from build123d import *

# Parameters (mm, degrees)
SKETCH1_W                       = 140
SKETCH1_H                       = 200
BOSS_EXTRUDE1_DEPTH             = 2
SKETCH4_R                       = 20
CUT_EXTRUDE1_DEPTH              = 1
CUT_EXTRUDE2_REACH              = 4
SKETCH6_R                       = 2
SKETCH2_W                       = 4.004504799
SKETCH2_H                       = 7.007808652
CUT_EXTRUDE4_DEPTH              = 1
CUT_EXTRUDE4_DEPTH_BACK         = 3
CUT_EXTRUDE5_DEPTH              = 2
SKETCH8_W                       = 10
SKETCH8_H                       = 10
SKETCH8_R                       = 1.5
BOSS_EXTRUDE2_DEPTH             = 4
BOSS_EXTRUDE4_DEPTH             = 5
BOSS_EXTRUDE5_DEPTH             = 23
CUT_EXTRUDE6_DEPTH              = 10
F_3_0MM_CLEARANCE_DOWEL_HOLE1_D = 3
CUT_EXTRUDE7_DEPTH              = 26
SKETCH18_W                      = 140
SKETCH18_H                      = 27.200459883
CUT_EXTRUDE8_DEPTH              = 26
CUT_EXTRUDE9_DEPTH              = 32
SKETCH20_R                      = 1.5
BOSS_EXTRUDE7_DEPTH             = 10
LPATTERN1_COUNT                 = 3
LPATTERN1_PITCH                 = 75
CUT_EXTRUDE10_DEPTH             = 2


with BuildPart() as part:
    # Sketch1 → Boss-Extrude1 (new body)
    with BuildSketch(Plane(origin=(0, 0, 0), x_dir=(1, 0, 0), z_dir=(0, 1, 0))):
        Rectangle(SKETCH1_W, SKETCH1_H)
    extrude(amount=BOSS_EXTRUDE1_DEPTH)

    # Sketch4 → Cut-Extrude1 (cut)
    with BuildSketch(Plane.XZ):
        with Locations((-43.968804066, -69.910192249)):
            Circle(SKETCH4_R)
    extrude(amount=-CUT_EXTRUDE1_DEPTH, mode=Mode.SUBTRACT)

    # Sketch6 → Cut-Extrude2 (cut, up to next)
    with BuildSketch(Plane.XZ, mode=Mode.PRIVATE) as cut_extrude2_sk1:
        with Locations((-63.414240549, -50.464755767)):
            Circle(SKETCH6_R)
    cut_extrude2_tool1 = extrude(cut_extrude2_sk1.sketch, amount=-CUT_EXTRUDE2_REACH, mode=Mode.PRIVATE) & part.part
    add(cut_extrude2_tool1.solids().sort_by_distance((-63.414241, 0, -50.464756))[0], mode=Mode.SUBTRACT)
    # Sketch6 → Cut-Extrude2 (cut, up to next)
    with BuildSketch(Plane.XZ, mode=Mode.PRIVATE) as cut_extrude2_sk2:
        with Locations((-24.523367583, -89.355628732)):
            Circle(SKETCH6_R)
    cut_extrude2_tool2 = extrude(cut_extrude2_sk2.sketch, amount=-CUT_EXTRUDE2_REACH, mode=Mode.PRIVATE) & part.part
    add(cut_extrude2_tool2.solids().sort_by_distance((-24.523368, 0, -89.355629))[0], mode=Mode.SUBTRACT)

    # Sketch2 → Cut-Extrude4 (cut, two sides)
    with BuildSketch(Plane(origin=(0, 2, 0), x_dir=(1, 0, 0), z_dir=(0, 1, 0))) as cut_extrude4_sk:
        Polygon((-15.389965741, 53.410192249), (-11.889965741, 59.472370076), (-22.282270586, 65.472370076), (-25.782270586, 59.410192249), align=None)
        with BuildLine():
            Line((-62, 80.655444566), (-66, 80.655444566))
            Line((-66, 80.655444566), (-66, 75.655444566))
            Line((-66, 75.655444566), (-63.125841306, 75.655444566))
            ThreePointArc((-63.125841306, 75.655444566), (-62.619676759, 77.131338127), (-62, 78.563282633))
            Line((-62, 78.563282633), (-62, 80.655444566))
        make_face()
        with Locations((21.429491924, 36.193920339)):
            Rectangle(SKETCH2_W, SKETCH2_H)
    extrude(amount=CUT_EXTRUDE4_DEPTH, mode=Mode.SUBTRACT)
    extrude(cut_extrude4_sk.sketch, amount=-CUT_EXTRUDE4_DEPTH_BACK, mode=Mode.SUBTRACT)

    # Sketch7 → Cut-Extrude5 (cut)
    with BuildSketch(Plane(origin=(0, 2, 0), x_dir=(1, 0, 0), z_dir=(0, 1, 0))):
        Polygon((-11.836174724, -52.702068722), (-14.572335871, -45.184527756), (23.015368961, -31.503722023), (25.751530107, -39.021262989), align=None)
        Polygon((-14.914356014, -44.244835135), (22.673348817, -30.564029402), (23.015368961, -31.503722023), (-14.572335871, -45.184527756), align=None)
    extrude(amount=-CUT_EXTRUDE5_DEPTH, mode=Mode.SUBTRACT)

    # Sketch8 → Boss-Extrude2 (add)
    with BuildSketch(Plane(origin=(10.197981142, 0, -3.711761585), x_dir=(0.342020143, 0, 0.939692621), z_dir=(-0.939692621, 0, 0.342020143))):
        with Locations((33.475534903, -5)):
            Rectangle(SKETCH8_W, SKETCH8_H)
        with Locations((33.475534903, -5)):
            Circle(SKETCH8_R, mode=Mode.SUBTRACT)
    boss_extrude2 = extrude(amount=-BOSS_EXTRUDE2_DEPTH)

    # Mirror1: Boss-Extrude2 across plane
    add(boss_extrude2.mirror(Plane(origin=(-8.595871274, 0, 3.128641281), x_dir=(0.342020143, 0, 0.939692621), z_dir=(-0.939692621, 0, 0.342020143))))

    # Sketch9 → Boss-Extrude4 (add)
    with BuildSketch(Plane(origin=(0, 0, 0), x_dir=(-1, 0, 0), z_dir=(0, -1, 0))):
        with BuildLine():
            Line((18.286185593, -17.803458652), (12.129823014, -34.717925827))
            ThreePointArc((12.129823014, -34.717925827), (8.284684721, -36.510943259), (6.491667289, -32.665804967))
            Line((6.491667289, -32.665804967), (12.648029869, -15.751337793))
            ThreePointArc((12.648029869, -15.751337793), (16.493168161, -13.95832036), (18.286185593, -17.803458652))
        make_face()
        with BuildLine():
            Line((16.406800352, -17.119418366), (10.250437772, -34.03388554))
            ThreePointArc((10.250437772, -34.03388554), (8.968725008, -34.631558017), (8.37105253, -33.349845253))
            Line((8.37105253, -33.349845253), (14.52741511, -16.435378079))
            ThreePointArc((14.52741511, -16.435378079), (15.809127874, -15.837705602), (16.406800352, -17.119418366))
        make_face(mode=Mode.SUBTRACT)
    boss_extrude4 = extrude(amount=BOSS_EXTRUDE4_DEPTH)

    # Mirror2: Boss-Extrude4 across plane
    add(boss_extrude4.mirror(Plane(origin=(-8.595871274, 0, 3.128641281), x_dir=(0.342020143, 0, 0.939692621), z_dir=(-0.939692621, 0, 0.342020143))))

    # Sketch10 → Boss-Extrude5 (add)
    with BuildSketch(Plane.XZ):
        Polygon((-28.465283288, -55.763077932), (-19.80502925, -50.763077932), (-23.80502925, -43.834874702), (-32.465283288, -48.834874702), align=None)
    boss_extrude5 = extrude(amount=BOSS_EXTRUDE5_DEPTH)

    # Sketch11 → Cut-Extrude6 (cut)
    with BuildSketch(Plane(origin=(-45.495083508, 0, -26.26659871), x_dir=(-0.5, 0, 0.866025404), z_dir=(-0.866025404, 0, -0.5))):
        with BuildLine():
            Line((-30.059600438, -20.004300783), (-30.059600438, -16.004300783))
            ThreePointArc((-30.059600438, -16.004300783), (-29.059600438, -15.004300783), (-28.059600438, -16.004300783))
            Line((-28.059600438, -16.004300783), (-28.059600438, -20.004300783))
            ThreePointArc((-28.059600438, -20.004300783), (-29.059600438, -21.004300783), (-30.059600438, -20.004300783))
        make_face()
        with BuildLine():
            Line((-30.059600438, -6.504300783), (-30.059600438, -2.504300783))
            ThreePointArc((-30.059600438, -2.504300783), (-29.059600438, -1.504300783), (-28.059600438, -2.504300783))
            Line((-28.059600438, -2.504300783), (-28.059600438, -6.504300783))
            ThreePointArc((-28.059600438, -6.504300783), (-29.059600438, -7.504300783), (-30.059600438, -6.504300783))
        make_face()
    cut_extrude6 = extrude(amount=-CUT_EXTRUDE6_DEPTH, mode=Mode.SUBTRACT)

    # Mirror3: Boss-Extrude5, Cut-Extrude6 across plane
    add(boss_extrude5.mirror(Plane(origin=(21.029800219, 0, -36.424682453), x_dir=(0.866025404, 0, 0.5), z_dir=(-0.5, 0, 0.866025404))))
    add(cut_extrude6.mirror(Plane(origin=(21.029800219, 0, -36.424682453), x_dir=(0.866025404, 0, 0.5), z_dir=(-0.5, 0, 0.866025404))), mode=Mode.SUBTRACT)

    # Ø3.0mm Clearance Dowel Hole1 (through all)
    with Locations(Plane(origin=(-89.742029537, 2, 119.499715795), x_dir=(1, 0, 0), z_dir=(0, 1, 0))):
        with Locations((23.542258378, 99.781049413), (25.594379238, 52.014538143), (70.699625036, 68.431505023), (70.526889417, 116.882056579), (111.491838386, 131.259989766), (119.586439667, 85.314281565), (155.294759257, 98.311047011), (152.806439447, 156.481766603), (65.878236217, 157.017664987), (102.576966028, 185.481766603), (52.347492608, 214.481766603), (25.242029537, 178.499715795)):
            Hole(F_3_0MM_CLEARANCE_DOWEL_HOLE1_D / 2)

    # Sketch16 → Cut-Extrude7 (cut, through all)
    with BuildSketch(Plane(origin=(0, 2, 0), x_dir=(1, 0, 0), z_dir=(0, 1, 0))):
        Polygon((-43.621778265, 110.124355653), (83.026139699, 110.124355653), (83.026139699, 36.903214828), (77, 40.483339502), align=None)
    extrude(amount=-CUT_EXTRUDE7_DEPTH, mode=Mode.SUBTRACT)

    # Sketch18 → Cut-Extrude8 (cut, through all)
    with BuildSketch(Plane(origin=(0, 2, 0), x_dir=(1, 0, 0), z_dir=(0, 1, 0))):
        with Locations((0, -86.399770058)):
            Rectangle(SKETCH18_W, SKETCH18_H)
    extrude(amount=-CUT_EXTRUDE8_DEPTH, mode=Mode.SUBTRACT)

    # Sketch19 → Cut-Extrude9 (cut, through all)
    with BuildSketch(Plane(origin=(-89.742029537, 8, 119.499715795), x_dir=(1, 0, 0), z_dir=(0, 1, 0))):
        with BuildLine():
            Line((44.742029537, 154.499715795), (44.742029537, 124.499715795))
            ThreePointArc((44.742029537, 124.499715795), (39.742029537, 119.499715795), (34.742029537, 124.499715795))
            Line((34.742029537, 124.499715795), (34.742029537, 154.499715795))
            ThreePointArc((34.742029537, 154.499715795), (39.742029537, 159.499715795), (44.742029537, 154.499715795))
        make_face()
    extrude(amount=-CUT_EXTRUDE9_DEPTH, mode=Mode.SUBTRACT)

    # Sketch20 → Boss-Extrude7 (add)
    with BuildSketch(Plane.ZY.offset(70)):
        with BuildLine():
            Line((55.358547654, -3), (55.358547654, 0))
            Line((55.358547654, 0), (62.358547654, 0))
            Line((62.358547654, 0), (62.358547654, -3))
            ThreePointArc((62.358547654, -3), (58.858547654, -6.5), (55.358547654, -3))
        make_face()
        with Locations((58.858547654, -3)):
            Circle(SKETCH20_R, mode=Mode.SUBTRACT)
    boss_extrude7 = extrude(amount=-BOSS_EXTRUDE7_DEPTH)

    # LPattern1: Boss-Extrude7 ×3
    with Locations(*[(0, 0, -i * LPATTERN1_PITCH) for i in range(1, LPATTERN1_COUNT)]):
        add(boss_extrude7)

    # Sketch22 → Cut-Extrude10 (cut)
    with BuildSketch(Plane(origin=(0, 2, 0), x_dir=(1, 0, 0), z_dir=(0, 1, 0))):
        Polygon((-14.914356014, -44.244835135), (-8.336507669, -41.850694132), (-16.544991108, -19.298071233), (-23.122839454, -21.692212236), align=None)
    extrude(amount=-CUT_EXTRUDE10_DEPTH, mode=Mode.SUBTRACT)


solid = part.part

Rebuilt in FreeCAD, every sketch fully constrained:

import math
import FreeCAD as App
import Part
import Sketcher
Q = App.Units.Quantity


def add_polygon(sketch, points):
    """Adds a closed chain of lines whose ends are joined by coincident constraints."""
    first, n = sketch.GeometryCount, len(points)
    for a, b in zip(points, points[1:] + points[:1]):
        sketch.addGeometry(Part.LineSegment(App.Vector(*a, 0), App.Vector(*b, 0)), False)
    for i in range(n):
        sketch.addConstraint(Sketcher.Constraint("Coincident", first + i, 2, first + (i + 1) % n, 1))

doc = App.newDocument("Part")
body = doc.addObject("PartDesign::Body", "Body")

# Sketch on XZ plane
sketch1 = body.newObject("Sketcher::SketchObject", "Sketch")
sketch1.AttachmentSupport = (doc.getObject("XZ_Plane"), [""])
sketch1.MapMode = "FlatFace"
add_polygon(sketch1, [(-70, -100), (-70, 100), (70, 100), (70, -100)])  # lines 0-3
sketch1.addConstraint(Sketcher.Constraint("Vertical", 0))
sketch1.addConstraint(Sketcher.Constraint("Horizontal", 1))
sketch1.addConstraint(Sketcher.Constraint("Vertical", 2))
sketch1.addConstraint(Sketcher.Constraint("Horizontal", 3))
sketch1.addConstraint(Sketcher.Constraint("Symmetric", 0, 2, 2, 2, -1, 1))
sketch1.addConstraint(Sketcher.Constraint("DistanceX", 1, 1, 1, 2, Q("140 mm")))
sketch1.addConstraint(Sketcher.Constraint("DistanceY", 0, 1, 0, 2, Q("200 mm")))
pad1 = body.newObject("PartDesign::Pad", "Pad")
pad1.Profile = sketch1
pad1.Length = 2
pad1.Reversed = True

# Sketch on XZ plane
sketch2 = body.newObject("Sketcher::SketchObject", "Sketch001")
sketch2.AttachmentSupport = (doc.getObject("XZ_Plane"), [""])
sketch2.MapMode = "FlatFace"
sketch2.addGeometry(Part.Circle(App.Vector(-43.968804, -69.910192, 0), App.Vector(0, 0, 1), 20), False)
sketch2.addConstraint(Sketcher.Constraint("Diameter", 0, Q("40 mm")))
sketch2.addConstraint(Sketcher.Constraint("DistanceX", 0, 3, -1, 1, Q("43.968804 mm")))
sketch2.addConstraint(Sketcher.Constraint("DistanceY", 0, 3, -1, 1, Q("69.910192 mm")))
pocket1 = body.newObject("PartDesign::Pocket", "Pocket")
pocket1.Profile = sketch2
pocket1.Length = 1

# Sketch on XZ plane
sketch3 = body.newObject("Sketcher::SketchObject", "Sketch002")
sketch3.AttachmentSupport = (doc.getObject("XZ_Plane"), [""])
sketch3.MapMode = "FlatFace"
sketch3.addGeometry(Part.Circle(App.Vector(-63.414241, -50.464756, 0), App.Vector(0, 0, 1), 2), False)
sketch3.addConstraint(Sketcher.Constraint("Diameter", 0, Q("4 mm")))
sketch3.addConstraint(Sketcher.Constraint("DistanceX", 0, 3, -1, 1, Q("63.414241 mm")))
sketch3.addConstraint(Sketcher.Constraint("DistanceY", 0, 3, -1, 1, Q("50.464756 mm")))
pocket2 = body.newObject("PartDesign::Pocket", "Pocket001")
pocket2.Profile = sketch3
pocket2.Type = "UpToFirst"

# Sketch on XZ plane
sketch4 = body.newObject("Sketcher::SketchObject", "Sketch003")
sketch4.AttachmentSupport = (doc.getObject("XZ_Plane"), [""])
sketch4.MapMode = "FlatFace"
sketch4.addGeometry(Part.Circle(App.Vector(-24.523368, -89.355629, 0), App.Vector(0, 0, 1), 2), False)
sketch4.addConstraint(Sketcher.Constraint("Diameter", 0, Q("4 mm")))
sketch4.addConstraint(Sketcher.Constraint("DistanceY", 0, 3, -1, 1, Q("89.355629 mm")))
sketch4.addConstraint(Sketcher.Constraint("DistanceX", 0, 3, -1, 1, Q("24.523368 mm")))
pocket3 = body.newObject("PartDesign::Pocket", "Pocket002")
pocket3.Profile = sketch4
pocket3.Type = "UpToFirst"

# Sketch on XZ plane
sketch5 = body.newObject("Sketcher::SketchObject", "Sketch004")
sketch5.AttachmentSupport = (doc.getObject("XZ_Plane"), [""])
sketch5.MapMode = "FlatFace"
sketch5.AttachmentOffset = App.Placement(App.Vector(0, 0, -2), App.Rotation())
add_polygon(sketch5, [(-15.389966, -53.410192), (-11.889966, -59.47237), (-22.282271, -65.47237), (-25.782271, -59.410192)])  # lines 0-3
sketch5.addGeometry(Part.LineSegment(App.Vector(-62, -80.655445, 0), App.Vector(-66, -80.655445, 0)), False)  # 4
sketch5.addGeometry(Part.LineSegment(App.Vector(-66, -80.655445, 0), App.Vector(-66, -75.655445, 0)), False)  # 5
sketch5.addGeometry(Part.LineSegment(App.Vector(-66, -75.655445, 0), App.Vector(-63.125841, -75.655445, 0)), False)  # 6
sketch5.addGeometry(Part.ArcOfCircle(Part.Circle(App.Vector(-43.968804, -69.910192, 0), App.Vector(0, 0, 1), 20), math.radians(-163.305856), math.radians(-154.363859)), False)  # 7
sketch5.addGeometry(Part.LineSegment(App.Vector(-62, -78.563283, 0), App.Vector(-62, -80.655445, 0)), False)  # 8
add_polygon(sketch5, [(19.42724, -39.697825), (19.42724, -32.690016), (23.431744, -32.690016), (23.431744, -39.697825)])  # lines 9-12
sketch5.addConstraint(Sketcher.Constraint("Coincident", 4, 2, 5, 1))
sketch5.addConstraint(Sketcher.Constraint("Coincident", 5, 2, 6, 1))
sketch5.addConstraint(Sketcher.Constraint("Coincident", 6, 2, 7, 1))
sketch5.addConstraint(Sketcher.Constraint("Coincident", 7, 2, 8, 1))
sketch5.addConstraint(Sketcher.Constraint("Coincident", 8, 2, 4, 1))
sketch5.addConstraint(Sketcher.Constraint("Horizontal", 4))
sketch5.addConstraint(Sketcher.Constraint("Vertical", 5))
sketch5.addConstraint(Sketcher.Constraint("Horizontal", 6))
sketch5.addConstraint(Sketcher.Constraint("Vertical", 8))
sketch5.addConstraint(Sketcher.Constraint("Vertical", 9))
sketch5.addConstraint(Sketcher.Constraint("Horizontal", 10))
sketch5.addConstraint(Sketcher.Constraint("Vertical", 11))
sketch5.addConstraint(Sketcher.Constraint("Horizontal", 12))
sketch5.addConstraint(Sketcher.Constraint("Perpendicular", 0, 1))
sketch5.addConstraint(Sketcher.Constraint("Perpendicular", 1, 2))
sketch5.addConstraint(Sketcher.Constraint("Perpendicular", 2, 3))
sketch5.addConstraint(Sketcher.Constraint("Radius", 7, Q("20 mm")))
sketch5.addConstraint(Sketcher.Constraint("DistanceX", 4, 2, 4, 1, Q("4 mm")))
sketch5.addConstraint(Sketcher.Constraint("DistanceY", 5, 1, 5, 2, Q("5 mm")))
sketch5.addConstraint(Sketcher.Constraint("Angle", 0, Q("-60 deg")))
sketch5.addConstraint(Sketcher.Constraint("Distance", 0, Q("7 mm")))
sketch5.addConstraint(Sketcher.Constraint("Distance", 1, Q("12 mm")))
sketch5.addConstraint(Sketcher.Constraint("DistanceX", 4, 2, -1, 1, Q("66 mm")))
sketch5.addConstraint(Sketcher.Constraint("DistanceY", 7, 3, 2, 2, Q("10.5 mm")))
sketch5.addConstraint(Sketcher.Constraint("DistanceX", 6, 1, 6, 2, Q("2.874159 mm")))
sketch5.addConstraint(Sketcher.Constraint("DistanceY", 8, 2, 8, 1, Q("2.092162 mm")))
sketch5.addConstraint(Sketcher.Constraint("DistanceY", 9, 1, 9, 2, Q("7.007809 mm")))
sketch5.addConstraint(Sketcher.Constraint("DistanceX", 10, 1, 10, 2, Q("4.004505 mm")))
sketch5.addConstraint(Sketcher.Constraint("DistanceY", 0, 2, -1, 1, Q("59.47237 mm")))
sketch5.addConstraint(Sketcher.Constraint("DistanceX", 1, 2, -1, 1, Q("22.282271 mm")))
sketch5.addConstraint(Sketcher.Constraint("DistanceX", -1, 1, 9, 2, Q("19.42724 mm")))
sketch5.addConstraint(Sketcher.Constraint("DistanceY", 9, 2, -1, 1, Q("32.690016 mm")))
pocket4 = body.newObject("PartDesign::Pocket", "Pocket003")
pocket4.Profile = sketch5
pocket4.Type = "ThroughAll"
pocket4.Midplane = True

# Sketch on XZ plane
sketch6 = body.newObject("Sketcher::SketchObject", "Sketch005")
sketch6.AttachmentSupport = (doc.getObject("XZ_Plane"), [""])
sketch6.MapMode = "FlatFace"
sketch6.AttachmentOffset = App.Placement(App.Vector(0, 0, -2), App.Rotation())
add_polygon(sketch6, [(-14.572336, 45.184528), (-11.836175, 52.702069), (25.75153, 39.021263), (23.015369, 31.503722), (22.673349, 30.564029), (-14.914356, 44.244835)])  # lines 0-5
sketch6.addConstraint(Sketcher.Constraint("Perpendicular", 0, 1))
sketch6.addConstraint(Sketcher.Constraint("Perpendicular", 1, 2))
sketch6.addConstraint(Sketcher.Constraint("Parallel", 2, 3))
sketch6.addConstraint(Sketcher.Constraint("Perpendicular", 3, 4))
sketch6.addConstraint(Sketcher.Constraint("Perpendicular", 4, 5))
sketch6.addConstraint(Sketcher.Constraint("Equal", 0, 2))
sketch6.addConstraint(Sketcher.Constraint("Angle", 0, Q("70 deg")))
sketch6.addConstraint(Sketcher.Constraint("Distance", 0, Q("8 mm")))
sketch6.addConstraint(Sketcher.Constraint("Distance", 1, Q("40 mm")))
sketch6.addConstraint(Sketcher.Constraint("Distance", 3, Q("1 mm")))
sketch6.addConstraint(Sketcher.Constraint("DistanceY", -1, 1, 0, 2, Q("52.702069 mm")))
sketch6.addConstraint(Sketcher.Constraint("DistanceX", -1, 1, 1, 2, Q("25.75153 mm")))
pocket5 = body.newObject("PartDesign::Pocket", "Pocket004")
pocket5.Profile = sketch6
pocket5.Length = 2
pocket5.Reversed = True

# Sketch on an angled plane
sketch7 = body.newObject("Sketcher::SketchObject", "Sketch006")
sketch7.Placement = App.Placement(App.Vector(10.197981, 0, -3.711762), App.Rotation(App.Vector(0.342020143, 0, 0.939692621), App.Vector(0, 1, 0), App.Vector(-0.939692621, 0, 0.342020143), "ZXY"))
add_polygon(sketch7, [(28.475535, 0), (28.475535, -10), (38.475535, -10), (38.475535, 0)])  # lines 0-3
sketch7.addGeometry(Part.Circle(App.Vector(33.475535, -5, 0), App.Vector(0, 0, 1), 1.5), False)  # 4
sketch7.addConstraint(Sketcher.Constraint("Vertical", 0))
sketch7.addConstraint(Sketcher.Constraint("Horizontal", 1))
sketch7.addConstraint(Sketcher.Constraint("Vertical", 2))
sketch7.addConstraint(Sketcher.Constraint("Horizontal", 3))
sketch7.addConstraint(Sketcher.Constraint("PointOnObject", 2, 2, -1))
sketch7.addConstraint(Sketcher.Constraint("Equal", 3, 0))
sketch7.addConstraint(Sketcher.Constraint("Diameter", 4, Q("3 mm")))
sketch7.addConstraint(Sketcher.Constraint("DistanceX", 1, 1, 1, 2, Q("10 mm")))
sketch7.addConstraint(Sketcher.Constraint("DistanceY", 4, 3, -1, 1, Q("5 mm")))
sketch7.addConstraint(Sketcher.Constraint("DistanceX", 0, 2, 4, 3, Q("5 mm")))
sketch7.addConstraint(Sketcher.Constraint("DistanceX", -1, 1, 4, 3, Q("33.475535 mm")))
pad2 = body.newObject("PartDesign::Pad", "Pad001")
pad2.Profile = sketch7
pad2.Length = 4
pad2.Reversed = True
doc.recompute()

datumplane = body.newObject("PartDesign::Plane", "DatumPlane")
datumplane.Placement = App.Placement(App.Vector(-8.595871, 0, 3.128641), App.Rotation(App.Vector(-0.342020143, 0, -0.939692621), App.Vector(0, -1, 0), App.Vector(-0.939692621, 0, 0.342020143), "ZXY"))
mirrored = body.newObject("PartDesign::Mirrored", "Mirrored")
mirrored.Originals = [pad2]
mirrored.MirrorPlane = (datumplane, [""])
body.Tip = mirrored

# Sketch on XZ plane
sketch8 = body.newObject("Sketcher::SketchObject", "Sketch007")
sketch8.AttachmentSupport = (doc.getObject("XZ_Plane"), [""])
sketch8.MapMode = "FlatFace"
sketch8.addGeometry(Part.LineSegment(App.Vector(-12.129823, 34.717926, 0), App.Vector(-18.286186, 17.803459, 0)), False)
sketch8.addGeometry(Part.ArcOfCircle(Part.Circle(App.Vector(-15.467108, 16.777398, 0), App.Vector(0, 0, 1), 3), math.radians(160), math.radians(340)), False)
sketch8.addGeometry(Part.LineSegment(App.Vector(-12.64803, 15.751338, 0), App.Vector(-6.491667, 32.665805, 0)), False)
sketch8.addGeometry(Part.ArcOfCircle(Part.Circle(App.Vector(-9.310745, 33.691865, 0), App.Vector(0, 0, 1), 3), math.radians(-20), math.radians(160)), False)
sketch8.addGeometry(Part.LineSegment(App.Vector(-16.4068, 17.119418, 0), App.Vector(-10.250438, 34.033886, 0)), False)
sketch8.addGeometry(Part.ArcOfCircle(Part.Circle(App.Vector(-9.310745, 33.691865, 0), App.Vector(0, 0, 1), 1), math.radians(-20), math.radians(160)), False)
sketch8.addGeometry(Part.LineSegment(App.Vector(-8.371053, 33.349845, 0), App.Vector(-14.527415, 16.435378, 0)), False)
sketch8.addGeometry(Part.ArcOfCircle(Part.Circle(App.Vector(-15.467108, 16.777398, 0), App.Vector(0, 0, 1), 1), math.radians(160), math.radians(340)), False)
sketch8.addConstraint(Sketcher.Constraint("Tangent", 0, 2, 1, 1))
sketch8.addConstraint(Sketcher.Constraint("Tangent", 1, 2, 2, 1))
sketch8.addConstraint(Sketcher.Constraint("Tangent", 2, 2, 3, 1))
sketch8.addConstraint(Sketcher.Constraint("Tangent", 3, 2, 0, 1))
sketch8.addConstraint(Sketcher.Constraint("Tangent", 4, 2, 5, 2))
sketch8.addConstraint(Sketcher.Constraint("Tangent", 5, 1, 6, 1))
sketch8.addConstraint(Sketcher.Constraint("Tangent", 6, 2, 7, 2))
sketch8.addConstraint(Sketcher.Constraint("Tangent", 7, 1, 4, 1))
sketch8.addConstraint(Sketcher.Constraint("Coincident", 5, 3, 3, 3))
sketch8.addConstraint(Sketcher.Constraint("Coincident", 7, 3, 1, 3))
sketch8.addConstraint(Sketcher.Constraint("Equal", 1, 3))
sketch8.addConstraint(Sketcher.Constraint("Equal", 5, 7))
sketch8.addConstraint(Sketcher.Constraint("Radius", 1, Q("3 mm")))
sketch8.addConstraint(Sketcher.Constraint("Radius", 5, Q("1 mm")))
sketch8.addConstraint(Sketcher.Constraint("Angle", 0, Q("-110 deg")))
sketch8.addConstraint(Sketcher.Constraint("Distance", 0, Q("18 mm")))
sketch8.addConstraint(Sketcher.Constraint("DistanceY", -1, 1, 1, 3, Q("16.777398 mm")))
sketch8.addConstraint(Sketcher.Constraint("DistanceX", 7, 1, -1, 1, Q("16.4068 mm")))
pad3 = body.newObject("PartDesign::Pad", "Pad002")
pad3.Profile = sketch8
pad3.Length = 5
doc.recompute()

datumplane2 = body.newObject("PartDesign::Plane", "DatumPlane001")
datumplane2.Placement = App.Placement(App.Vector(-8.595871, 0, 3.128641), App.Rotation(App.Vector(-0.342020143, 0, -0.939692621), App.Vector(0, -1, 0), App.Vector(-0.939692621, 0, 0.342020143), "ZXY"))
mirrored2 = body.newObject("PartDesign::Mirrored", "Mirrored001")
mirrored2.Originals = [pad3]
mirrored2.MirrorPlane = (datumplane2, [""])
body.Tip = mirrored2

# Sketch on XZ plane
sketch9 = body.newObject("Sketcher::SketchObject", "Sketch008")
sketch9.AttachmentSupport = (doc.getObject("XZ_Plane"), [""])
sketch9.MapMode = "FlatFace"
add_polygon(sketch9, [(-28.465283, -55.763078), (-19.805029, -50.763078), (-23.805029, -43.834875), (-32.465283, -48.834875)])  # lines 0-3
sketch9.addConstraint(Sketcher.Constraint("Perpendicular", 0, 1))
sketch9.addConstraint(Sketcher.Constraint("Perpendicular", 1, 2))
sketch9.addConstraint(Sketcher.Constraint("Perpendicular", 2, 3))
sketch9.addConstraint(Sketcher.Constraint("Angle", 0, Q("30 deg")))
sketch9.addConstraint(Sketcher.Constraint("Distance", 0, Q("10 mm")))
sketch9.addConstraint(Sketcher.Constraint("Distance", 1, Q("8 mm")))
sketch9.addConstraint(Sketcher.Constraint("DistanceX", 0, 2, -1, 1, Q("19.805029 mm")))
sketch9.addConstraint(Sketcher.Constraint("DistanceY", 0, 2, -1, 1, Q("50.763078 mm")))
pad4 = body.newObject("PartDesign::Pad", "Pad003")
pad4.Profile = sketch9
pad4.Length = 23

# Sketch on an angled plane
sketch10 = body.newObject("Sketcher::SketchObject", "Sketch009")
sketch10.Placement = App.Placement(App.Vector(-45.495084, 0, -26.266599), App.Rotation(App.Vector(-0.5, 0, 0.866025404), App.Vector(0, 1, 0), App.Vector(-0.866025404, 0, -0.5), "ZXY"))
sketch10.addGeometry(Part.LineSegment(App.Vector(-30.0596, -16.004301, 0), App.Vector(-30.0596, -20.004301, 0)), False)
sketch10.addGeometry(Part.ArcOfCircle(Part.Circle(App.Vector(-29.0596, -20.004301, 0), App.Vector(0, 0, 1), 1), math.radians(180), math.radians(360)), False)
sketch10.addGeometry(Part.LineSegment(App.Vector(-28.0596, -20.004301, 0), App.Vector(-28.0596, -16.004301, 0)), False)
sketch10.addGeometry(Part.ArcOfCircle(Part.Circle(App.Vector(-29.0596, -16.004301, 0), App.Vector(0, 0, 1), 1), math.radians(0), math.radians(180)), False)
sketch10.addGeometry(Part.LineSegment(App.Vector(-30.0596, -2.504301, 0), App.Vector(-30.0596, -6.504301, 0)), False)
sketch10.addGeometry(Part.ArcOfCircle(Part.Circle(App.Vector(-29.0596, -6.504301, 0), App.Vector(0, 0, 1), 1), math.radians(180), math.radians(360)), False)
sketch10.addGeometry(Part.LineSegment(App.Vector(-28.0596, -6.504301, 0), App.Vector(-28.0596, -2.504301, 0)), False)
sketch10.addGeometry(Part.ArcOfCircle(Part.Circle(App.Vector(-29.0596, -2.504301, 0), App.Vector(0, 0, 1), 1), math.radians(0), math.radians(180)), False)
sketch10.addConstraint(Sketcher.Constraint("Tangent", 0, 2, 1, 1))
sketch10.addConstraint(Sketcher.Constraint("Tangent", 1, 2, 2, 1))
sketch10.addConstraint(Sketcher.Constraint("Tangent", 2, 2, 3, 1))
sketch10.addConstraint(Sketcher.Constraint("Tangent", 3, 2, 0, 1))
sketch10.addConstraint(Sketcher.Constraint("Tangent", 4, 2, 5, 1))
sketch10.addConstraint(Sketcher.Constraint("Tangent", 5, 2, 6, 1))
sketch10.addConstraint(Sketcher.Constraint("Tangent", 6, 2, 7, 1))
sketch10.addConstraint(Sketcher.Constraint("Tangent", 7, 2, 4, 1))
sketch10.addConstraint(Sketcher.Constraint("Vertical", 0))
sketch10.addConstraint(Sketcher.Constraint("Vertical", 2))
sketch10.addConstraint(Sketcher.Constraint("Vertical", 4))
sketch10.addConstraint(Sketcher.Constraint("Vertical", 6))
sketch10.addConstraint(Sketcher.Constraint("Equal", 3, 5))
sketch10.addConstraint(Sketcher.Constraint("Vertical", 3, 3, 5, 3))
sketch10.addConstraint(Sketcher.Constraint("Equal", 2, 4))
sketch10.addConstraint(Sketcher.Constraint("Radius", 1, Q("1 mm")))
sketch10.addConstraint(Sketcher.Constraint("DistanceY", 0, 2, 0, 1, Q("4 mm")))
sketch10.addConstraint(Sketcher.Constraint("DistanceY", 3, 3, 5, 3, Q("9.5 mm")))
sketch10.addConstraint(Sketcher.Constraint("DistanceX", 1, 3, -1, 1, Q("29.0596 mm")))
sketch10.addConstraint(Sketcher.Constraint("DistanceY", 1, 3, -1, 1, Q("20.004301 mm")))
pocket6 = body.newObject("PartDesign::Pocket", "Pocket005")
pocket6.Profile = sketch10
pocket6.Length = 10
doc.recompute()

datumplane3 = body.newObject("PartDesign::Plane", "DatumPlane002")
datumplane3.Placement = App.Placement(App.Vector(21.0298, 0, -36.424682), App.Rotation(App.Vector(-0.866025404, 0, -0.5), App.Vector(0, -1, 0), App.Vector(-0.5, 0, 0.866025404), "ZXY"))
mirrored3 = body.newObject("PartDesign::Mirrored", "Mirrored002")
mirrored3.Originals = [pad4, pocket6]
mirrored3.MirrorPlane = (datumplane3, [""])
body.Tip = mirrored3

# Sketch on XZ plane
sketch11 = body.newObject("Sketcher::SketchObject", "Sketch010")
sketch11.AttachmentSupport = (doc.getObject("XZ_Plane"), [""])
sketch11.MapMode = "FlatFace"
sketch11.AttachmentOffset = App.Placement(App.Vector(0, 0, -2), App.Rotation())
sketch11.addGeometry(Part.Circle(App.Vector(-66.199771, 19.718666, 0), App.Vector(0, 0, 1), 1.5), False)
sketch11.addGeometry(Part.Circle(App.Vector(-64.14765, 67.485178, 0), App.Vector(0, 0, 1), 1.5), False)
sketch11.addGeometry(Part.Circle(App.Vector(-19.042405, 51.068211, 0), App.Vector(0, 0, 1), 1.5), False)
sketch11.addGeometry(Part.Circle(App.Vector(-19.21514, 2.617659, 0), App.Vector(0, 0, 1), 1.5), False)
sketch11.addGeometry(Part.Circle(App.Vector(21.749809, -11.760274, 0), App.Vector(0, 0, 1), 1.5), False)
sketch11.addGeometry(Part.Circle(App.Vector(29.84441, 34.185434, 0), App.Vector(0, 0, 1), 1.5), False)
sketch11.addGeometry(Part.Circle(App.Vector(65.55273, 21.188669, 0), App.Vector(0, 0, 1), 1.5), False)
sketch11.addGeometry(Part.Circle(App.Vector(63.06441, -36.982051, 0), App.Vector(0, 0, 1), 1.5), False)
sketch11.addGeometry(Part.Circle(App.Vector(-23.863793, -37.517949, 0), App.Vector(0, 0, 1), 1.5), False)
sketch11.addGeometry(Part.Circle(App.Vector(12.834936, -65.982051, 0), App.Vector(0, 0, 1), 1.5), False)
sketch11.addGeometry(Part.Circle(App.Vector(-37.394537, -94.982051, 0), App.Vector(0, 0, 1), 1.5), False)
sketch11.addGeometry(Part.Circle(App.Vector(-64.5, -59, 0), App.Vector(0, 0, 1), 1.5), False)
sketch11.addConstraint(Sketcher.Constraint("Equal", 0, 1))
sketch11.addConstraint(Sketcher.Constraint("Equal", 1, 2))
sketch11.addConstraint(Sketcher.Constraint("Equal", 2, 3))
sketch11.addConstraint(Sketcher.Constraint("Equal", 3, 4))
sketch11.addConstraint(Sketcher.Constraint("Equal", 4, 5))
sketch11.addConstraint(Sketcher.Constraint("Equal", 5, 6))
sketch11.addConstraint(Sketcher.Constraint("Equal", 6, 7))
sketch11.addConstraint(Sketcher.Constraint("Equal", 7, 8))
sketch11.addConstraint(Sketcher.Constraint("Equal", 8, 9))
sketch11.addConstraint(Sketcher.Constraint("Equal", 9, 10))
sketch11.addConstraint(Sketcher.Constraint("Equal", 10, 11))
sketch11.addConstraint(Sketcher.Constraint("Diameter", 0, Q("3 mm")))
sketch11.addConstraint(Sketcher.Constraint("DistanceY", 11, 3, -1, 1, Q("59 mm")))
sketch11.addConstraint(Sketcher.Constraint("DistanceY", 9, 3, 7, 3, Q("29 mm")))
sketch11.addConstraint(Sketcher.Constraint("DistanceY", 10, 3, 9, 3, Q("29 mm")))
sketch11.addConstraint(Sketcher.Constraint("DistanceX", 11, 3, -1, 1, Q("64.5 mm")))
sketch11.addConstraint(Sketcher.Constraint("DistanceX", 5, 3, 7, 3, Q("33.22 mm")))
sketch11.addConstraint(Sketcher.Constraint("DistanceX", 4, 3, 5, 3, Q("8.094601 mm")))
sketch11.addConstraint(Sketcher.Constraint("DistanceX", 0, 3, 6, 3, Q("131.752501 mm")))
sketch11.addConstraint(Sketcher.Constraint("DistanceY", 8, 3, 7, 3, Q("0.535898 mm")))
sketch11.addConstraint(Sketcher.Constraint("DistanceX", 0, 3, -1, 1, Q("66.199771 mm")))
sketch11.addConstraint(Sketcher.Constraint("DistanceX", 1, 3, -1, 1, Q("64.14765 mm")))
sketch11.addConstraint(Sketcher.Constraint("DistanceY", -1, 1, 2, 3, Q("51.068211 mm")))
sketch11.addConstraint(Sketcher.Constraint("DistanceX", 3, 3, -1, 1, Q("19.21514 mm")))
sketch11.addConstraint(Sketcher.Constraint("DistanceY", -1, 1, 3, 3, Q("2.617659 mm")))
sketch11.addConstraint(Sketcher.Constraint("DistanceX", -1, 1, 4, 3, Q("21.749809 mm")))
sketch11.addConstraint(Sketcher.Constraint("DistanceY", -1, 1, 6, 3, Q("21.188669 mm")))
sketch11.addConstraint(Sketcher.Constraint("DistanceY", 7, 3, -1, 1, Q("36.982051 mm")))
sketch11.addConstraint(Sketcher.Constraint("DistanceY", 0, 3, 1, 3, Q("47.766511 mm")))
sketch11.addConstraint(Sketcher.Constraint("DistanceY", 3, 3, 1, 3, Q("64.867518 mm")))
sketch11.addConstraint(Sketcher.Constraint("DistanceY", 4, 3, 0, 3, Q("31.47894 mm")))
sketch11.addConstraint(Sketcher.Constraint("DistanceY", 4, 3, 5, 3, Q("45.945708 mm")))
sketch11.addConstraint(Sketcher.Constraint("DistanceX", 8, 3, 2, 3, Q("4.821389 mm")))
sketch11.addConstraint(Sketcher.Constraint("DistanceX", 8, 3, 9, 3, Q("36.69873 mm")))
sketch11.addConstraint(Sketcher.Constraint("DistanceX", 2, 3, -1, 1, Q("19.042405 mm")))
sketch11.addConstraint(Sketcher.Constraint("DistanceX", 10, 3, -1, 1, Q("37.394537 mm")))
doc.recompute()
hole = body.newObject("PartDesign::Hole", "Hole")
hole.Profile = sketch11
hole.ThreadType = "None"
hole.Diameter = 3
hole.DepthType = "ThroughAll"
hole.Reversed = True

# Sketch on XZ plane
sketch12 = body.newObject("Sketcher::SketchObject", "Sketch011")
sketch12.AttachmentSupport = (doc.getObject("XZ_Plane"), [""])
sketch12.MapMode = "FlatFace"
sketch12.AttachmentOffset = App.Placement(App.Vector(0, 0, -2), App.Rotation())
add_polygon(sketch12, [(83.02614, -110.124356), (-43.621778, -110.124356), (77, -40.48334), (83.02614, -36.903215)])  # lines 0-3
sketch12.addConstraint(Sketcher.Constraint("Horizontal", 0))
sketch12.addConstraint(Sketcher.Constraint("Vertical", 3))
sketch12.addConstraint(Sketcher.Constraint("Angle", 1, Q("30 deg")))
sketch12.addConstraint(Sketcher.Constraint("DistanceX", -1, 1, 1, 2, Q("77 mm")))
sketch12.addConstraint(Sketcher.Constraint("DistanceY", 3, 2, 3, 1, Q("73.221141 mm")))
sketch12.addConstraint(Sketcher.Constraint("DistanceX", 0, 2, 0, 1, Q("126.647918 mm")))
sketch12.addConstraint(Sketcher.Constraint("DistanceX", 0, 2, -1, 1, Q("43.621778 mm")))
sketch12.addConstraint(Sketcher.Constraint("DistanceY", 1, 2, -1, 1, Q("40.48334 mm")))
pocket7 = body.newObject("PartDesign::Pocket", "Pocket006")
pocket7.Profile = sketch12
pocket7.Type = "ThroughAll"
pocket7.Reversed = True

# Sketch on XZ plane
sketch13 = body.newObject("Sketcher::SketchObject", "Sketch012")
sketch13.AttachmentSupport = (doc.getObject("XZ_Plane"), [""])
sketch13.MapMode = "FlatFace"
sketch13.AttachmentOffset = App.Placement(App.Vector(0, 0, -2), App.Rotation())
add_polygon(sketch13, [(-70, 72.79954), (-70, 100), (70, 100), (70, 72.79954)])  # lines 0-3
sketch13.addConstraint(Sketcher.Constraint("Vertical", 0))
sketch13.addConstraint(Sketcher.Constraint("Horizontal", 1))
sketch13.addConstraint(Sketcher.Constraint("Vertical", 2))
sketch13.addConstraint(Sketcher.Constraint("Horizontal", 3))
sketch13.addConstraint(Sketcher.Constraint("DistanceX", 1, 1, 1, 2, Q("140 mm")))
sketch13.addConstraint(Sketcher.Constraint("DistanceX", 0, 2, -1, 1, Q("70 mm")))
sketch13.addConstraint(Sketcher.Constraint("DistanceY", -1, 1, 0, 2, Q("100 mm")))
sketch13.addConstraint(Sketcher.Constraint("DistanceY", 0, 1, 0, 2, Q("27.20046 mm")))
pocket8 = body.newObject("PartDesign::Pocket", "Pocket007")
pocket8.Profile = sketch13
pocket8.Type = "ThroughAll"
pocket8.Reversed = True

# Sketch on XZ plane
sketch14 = body.newObject("Sketcher::SketchObject", "Sketch013")
sketch14.AttachmentSupport = (doc.getObject("XZ_Plane"), [""])
sketch14.MapMode = "FlatFace"
sketch14.AttachmentOffset = App.Placement(App.Vector(0, 0, -8), App.Rotation())
sketch14.addGeometry(Part.LineSegment(App.Vector(-45, -5, 0), App.Vector(-45, -35, 0)), False)
sketch14.addGeometry(Part.ArcOfCircle(Part.Circle(App.Vector(-50, -35, 0), App.Vector(0, 0, 1), 5), math.radians(180), math.radians(360)), False)
sketch14.addGeometry(Part.LineSegment(App.Vector(-55, -35, 0), App.Vector(-55, -5, 0)), False)
sketch14.addGeometry(Part.ArcOfCircle(Part.Circle(App.Vector(-50, -5, 0), App.Vector(0, 0, 1), 5), math.radians(0), math.radians(180)), False)
sketch14.addConstraint(Sketcher.Constraint("Tangent", 0, 2, 1, 2))
sketch14.addConstraint(Sketcher.Constraint("Tangent", 1, 1, 2, 1))
sketch14.addConstraint(Sketcher.Constraint("Tangent", 2, 2, 3, 2))
sketch14.addConstraint(Sketcher.Constraint("Tangent", 3, 1, 0, 1))
sketch14.addConstraint(Sketcher.Constraint("Vertical", 0))
sketch14.addConstraint(Sketcher.Constraint("Vertical", 2))
sketch14.addConstraint(Sketcher.Constraint("Radius", 1, Q("5 mm")))
sketch14.addConstraint(Sketcher.Constraint("DistanceY", 0, 2, 0, 1, Q("30 mm")))
sketch14.addConstraint(Sketcher.Constraint("DistanceX", 1, 3, -1, 1, Q("50 mm")))
sketch14.addConstraint(Sketcher.Constraint("DistanceY", 1, 3, -1, 1, Q("35 mm")))
pocket9 = body.newObject("PartDesign::Pocket", "Pocket008")
pocket9.Profile = sketch14
pocket9.Type = "ThroughAll"
pocket9.Reversed = True

# Sketch on YZ plane
sketch15 = body.newObject("Sketcher::SketchObject", "Sketch014")
sketch15.AttachmentSupport = (doc.getObject("YZ_Plane"), [""])
sketch15.MapMode = "FlatFace"
sketch15.AttachmentOffset = App.Placement(App.Vector(0, 0, -70), App.Rotation())
sketch15.addGeometry(Part.LineSegment(App.Vector(0, 55.358548, 0), App.Vector(-3, 55.358548, 0)), False)
sketch15.addGeometry(Part.ArcOfCircle(Part.Circle(App.Vector(-3, 58.858548, 0), App.Vector(0, 0, 1), 3.5), math.radians(90), math.radians(270)), False)
sketch15.addGeometry(Part.LineSegment(App.Vector(-3, 62.358548, 0), App.Vector(0, 62.358548, 0)), False)
sketch15.addGeometry(Part.LineSegment(App.Vector(0, 62.358548, 0), App.Vector(0, 55.358548, 0)), False)
sketch15.addGeometry(Part.Circle(App.Vector(-3, 58.858548, 0), App.Vector(0, 0, 1), 1.5), False)
sketch15.addConstraint(Sketcher.Constraint("Tangent", 0, 2, 1, 2))
sketch15.addConstraint(Sketcher.Constraint("Tangent", 1, 1, 2, 1))
sketch15.addConstraint(Sketcher.Constraint("Coincident", 2, 2, 3, 1))
sketch15.addConstraint(Sketcher.Constraint("Coincident", 3, 2, 0, 1))
sketch15.addConstraint(Sketcher.Constraint("Horizontal", 0))
sketch15.addConstraint(Sketcher.Constraint("Horizontal", 2))
sketch15.addConstraint(Sketcher.Constraint("Vertical", 3))
sketch15.addConstraint(Sketcher.Constraint("Coincident", 4, 3, 1, 3))
sketch15.addConstraint(Sketcher.Constraint("PointOnObject", 2, 2, -2))
sketch15.addConstraint(Sketcher.Constraint("Diameter", 4, Q("3 mm")))
sketch15.addConstraint(Sketcher.Constraint("Radius", 1, Q("3.5 mm")))
sketch15.addConstraint(Sketcher.Constraint("DistanceX", 0, 2, 0, 1, Q("3 mm")))
sketch15.addConstraint(Sketcher.Constraint("DistanceY", -1, 1, 1, 3, Q("58.858548 mm")))
pad5 = body.newObject("PartDesign::Pad", "Pad004")
pad5.Profile = sketch15
pad5.Length = 10
doc.recompute()

linearpattern = body.newObject("PartDesign::LinearPattern", "LinearPattern")
linearpattern.Originals = [pad5]
linearpattern.Direction = (doc.getObject("Z_Axis"), [""])
linearpattern.Mode = "offset"
linearpattern.Offset = 75
linearpattern.Occurrences = 3
linearpattern.Reversed = True
body.Tip = linearpattern

# Sketch on XZ plane
sketch16 = body.newObject("Sketcher::SketchObject", "Sketch015")
sketch16.AttachmentSupport = (doc.getObject("XZ_Plane"), [""])
sketch16.MapMode = "FlatFace"
sketch16.AttachmentOffset = App.Placement(App.Vector(0, 0, -2), App.Rotation())
add_polygon(sketch16, [(-14.914356, 44.244835), (-8.336508, 41.850694), (-16.544991, 19.298071), (-23.122839, 21.692212)])  # lines 0-3
sketch16.addConstraint(Sketcher.Constraint("Perpendicular", 0, 1))
sketch16.addConstraint(Sketcher.Constraint("Perpendicular", 1, 2))
sketch16.addConstraint(Sketcher.Constraint("Perpendicular", 2, 3))
sketch16.addConstraint(Sketcher.Constraint("Angle", 0, Q("-20 deg")))
sketch16.addConstraint(Sketcher.Constraint("Distance", 0, Q("7 mm")))
sketch16.addConstraint(Sketcher.Constraint("Distance", 1, Q("24 mm")))
sketch16.addConstraint(Sketcher.Constraint("DistanceX", 1, 2, -1, 1, Q("16.544991 mm")))
sketch16.addConstraint(Sketcher.Constraint("DistanceY", -1, 1, 1, 2, Q("19.298071 mm")))
pocket10 = body.newObject("PartDesign::Pocket", "Pocket009")
pocket10.Profile = sketch16
pocket10.Length = 2
pocket10.Reversed = True

doc.recompute()
